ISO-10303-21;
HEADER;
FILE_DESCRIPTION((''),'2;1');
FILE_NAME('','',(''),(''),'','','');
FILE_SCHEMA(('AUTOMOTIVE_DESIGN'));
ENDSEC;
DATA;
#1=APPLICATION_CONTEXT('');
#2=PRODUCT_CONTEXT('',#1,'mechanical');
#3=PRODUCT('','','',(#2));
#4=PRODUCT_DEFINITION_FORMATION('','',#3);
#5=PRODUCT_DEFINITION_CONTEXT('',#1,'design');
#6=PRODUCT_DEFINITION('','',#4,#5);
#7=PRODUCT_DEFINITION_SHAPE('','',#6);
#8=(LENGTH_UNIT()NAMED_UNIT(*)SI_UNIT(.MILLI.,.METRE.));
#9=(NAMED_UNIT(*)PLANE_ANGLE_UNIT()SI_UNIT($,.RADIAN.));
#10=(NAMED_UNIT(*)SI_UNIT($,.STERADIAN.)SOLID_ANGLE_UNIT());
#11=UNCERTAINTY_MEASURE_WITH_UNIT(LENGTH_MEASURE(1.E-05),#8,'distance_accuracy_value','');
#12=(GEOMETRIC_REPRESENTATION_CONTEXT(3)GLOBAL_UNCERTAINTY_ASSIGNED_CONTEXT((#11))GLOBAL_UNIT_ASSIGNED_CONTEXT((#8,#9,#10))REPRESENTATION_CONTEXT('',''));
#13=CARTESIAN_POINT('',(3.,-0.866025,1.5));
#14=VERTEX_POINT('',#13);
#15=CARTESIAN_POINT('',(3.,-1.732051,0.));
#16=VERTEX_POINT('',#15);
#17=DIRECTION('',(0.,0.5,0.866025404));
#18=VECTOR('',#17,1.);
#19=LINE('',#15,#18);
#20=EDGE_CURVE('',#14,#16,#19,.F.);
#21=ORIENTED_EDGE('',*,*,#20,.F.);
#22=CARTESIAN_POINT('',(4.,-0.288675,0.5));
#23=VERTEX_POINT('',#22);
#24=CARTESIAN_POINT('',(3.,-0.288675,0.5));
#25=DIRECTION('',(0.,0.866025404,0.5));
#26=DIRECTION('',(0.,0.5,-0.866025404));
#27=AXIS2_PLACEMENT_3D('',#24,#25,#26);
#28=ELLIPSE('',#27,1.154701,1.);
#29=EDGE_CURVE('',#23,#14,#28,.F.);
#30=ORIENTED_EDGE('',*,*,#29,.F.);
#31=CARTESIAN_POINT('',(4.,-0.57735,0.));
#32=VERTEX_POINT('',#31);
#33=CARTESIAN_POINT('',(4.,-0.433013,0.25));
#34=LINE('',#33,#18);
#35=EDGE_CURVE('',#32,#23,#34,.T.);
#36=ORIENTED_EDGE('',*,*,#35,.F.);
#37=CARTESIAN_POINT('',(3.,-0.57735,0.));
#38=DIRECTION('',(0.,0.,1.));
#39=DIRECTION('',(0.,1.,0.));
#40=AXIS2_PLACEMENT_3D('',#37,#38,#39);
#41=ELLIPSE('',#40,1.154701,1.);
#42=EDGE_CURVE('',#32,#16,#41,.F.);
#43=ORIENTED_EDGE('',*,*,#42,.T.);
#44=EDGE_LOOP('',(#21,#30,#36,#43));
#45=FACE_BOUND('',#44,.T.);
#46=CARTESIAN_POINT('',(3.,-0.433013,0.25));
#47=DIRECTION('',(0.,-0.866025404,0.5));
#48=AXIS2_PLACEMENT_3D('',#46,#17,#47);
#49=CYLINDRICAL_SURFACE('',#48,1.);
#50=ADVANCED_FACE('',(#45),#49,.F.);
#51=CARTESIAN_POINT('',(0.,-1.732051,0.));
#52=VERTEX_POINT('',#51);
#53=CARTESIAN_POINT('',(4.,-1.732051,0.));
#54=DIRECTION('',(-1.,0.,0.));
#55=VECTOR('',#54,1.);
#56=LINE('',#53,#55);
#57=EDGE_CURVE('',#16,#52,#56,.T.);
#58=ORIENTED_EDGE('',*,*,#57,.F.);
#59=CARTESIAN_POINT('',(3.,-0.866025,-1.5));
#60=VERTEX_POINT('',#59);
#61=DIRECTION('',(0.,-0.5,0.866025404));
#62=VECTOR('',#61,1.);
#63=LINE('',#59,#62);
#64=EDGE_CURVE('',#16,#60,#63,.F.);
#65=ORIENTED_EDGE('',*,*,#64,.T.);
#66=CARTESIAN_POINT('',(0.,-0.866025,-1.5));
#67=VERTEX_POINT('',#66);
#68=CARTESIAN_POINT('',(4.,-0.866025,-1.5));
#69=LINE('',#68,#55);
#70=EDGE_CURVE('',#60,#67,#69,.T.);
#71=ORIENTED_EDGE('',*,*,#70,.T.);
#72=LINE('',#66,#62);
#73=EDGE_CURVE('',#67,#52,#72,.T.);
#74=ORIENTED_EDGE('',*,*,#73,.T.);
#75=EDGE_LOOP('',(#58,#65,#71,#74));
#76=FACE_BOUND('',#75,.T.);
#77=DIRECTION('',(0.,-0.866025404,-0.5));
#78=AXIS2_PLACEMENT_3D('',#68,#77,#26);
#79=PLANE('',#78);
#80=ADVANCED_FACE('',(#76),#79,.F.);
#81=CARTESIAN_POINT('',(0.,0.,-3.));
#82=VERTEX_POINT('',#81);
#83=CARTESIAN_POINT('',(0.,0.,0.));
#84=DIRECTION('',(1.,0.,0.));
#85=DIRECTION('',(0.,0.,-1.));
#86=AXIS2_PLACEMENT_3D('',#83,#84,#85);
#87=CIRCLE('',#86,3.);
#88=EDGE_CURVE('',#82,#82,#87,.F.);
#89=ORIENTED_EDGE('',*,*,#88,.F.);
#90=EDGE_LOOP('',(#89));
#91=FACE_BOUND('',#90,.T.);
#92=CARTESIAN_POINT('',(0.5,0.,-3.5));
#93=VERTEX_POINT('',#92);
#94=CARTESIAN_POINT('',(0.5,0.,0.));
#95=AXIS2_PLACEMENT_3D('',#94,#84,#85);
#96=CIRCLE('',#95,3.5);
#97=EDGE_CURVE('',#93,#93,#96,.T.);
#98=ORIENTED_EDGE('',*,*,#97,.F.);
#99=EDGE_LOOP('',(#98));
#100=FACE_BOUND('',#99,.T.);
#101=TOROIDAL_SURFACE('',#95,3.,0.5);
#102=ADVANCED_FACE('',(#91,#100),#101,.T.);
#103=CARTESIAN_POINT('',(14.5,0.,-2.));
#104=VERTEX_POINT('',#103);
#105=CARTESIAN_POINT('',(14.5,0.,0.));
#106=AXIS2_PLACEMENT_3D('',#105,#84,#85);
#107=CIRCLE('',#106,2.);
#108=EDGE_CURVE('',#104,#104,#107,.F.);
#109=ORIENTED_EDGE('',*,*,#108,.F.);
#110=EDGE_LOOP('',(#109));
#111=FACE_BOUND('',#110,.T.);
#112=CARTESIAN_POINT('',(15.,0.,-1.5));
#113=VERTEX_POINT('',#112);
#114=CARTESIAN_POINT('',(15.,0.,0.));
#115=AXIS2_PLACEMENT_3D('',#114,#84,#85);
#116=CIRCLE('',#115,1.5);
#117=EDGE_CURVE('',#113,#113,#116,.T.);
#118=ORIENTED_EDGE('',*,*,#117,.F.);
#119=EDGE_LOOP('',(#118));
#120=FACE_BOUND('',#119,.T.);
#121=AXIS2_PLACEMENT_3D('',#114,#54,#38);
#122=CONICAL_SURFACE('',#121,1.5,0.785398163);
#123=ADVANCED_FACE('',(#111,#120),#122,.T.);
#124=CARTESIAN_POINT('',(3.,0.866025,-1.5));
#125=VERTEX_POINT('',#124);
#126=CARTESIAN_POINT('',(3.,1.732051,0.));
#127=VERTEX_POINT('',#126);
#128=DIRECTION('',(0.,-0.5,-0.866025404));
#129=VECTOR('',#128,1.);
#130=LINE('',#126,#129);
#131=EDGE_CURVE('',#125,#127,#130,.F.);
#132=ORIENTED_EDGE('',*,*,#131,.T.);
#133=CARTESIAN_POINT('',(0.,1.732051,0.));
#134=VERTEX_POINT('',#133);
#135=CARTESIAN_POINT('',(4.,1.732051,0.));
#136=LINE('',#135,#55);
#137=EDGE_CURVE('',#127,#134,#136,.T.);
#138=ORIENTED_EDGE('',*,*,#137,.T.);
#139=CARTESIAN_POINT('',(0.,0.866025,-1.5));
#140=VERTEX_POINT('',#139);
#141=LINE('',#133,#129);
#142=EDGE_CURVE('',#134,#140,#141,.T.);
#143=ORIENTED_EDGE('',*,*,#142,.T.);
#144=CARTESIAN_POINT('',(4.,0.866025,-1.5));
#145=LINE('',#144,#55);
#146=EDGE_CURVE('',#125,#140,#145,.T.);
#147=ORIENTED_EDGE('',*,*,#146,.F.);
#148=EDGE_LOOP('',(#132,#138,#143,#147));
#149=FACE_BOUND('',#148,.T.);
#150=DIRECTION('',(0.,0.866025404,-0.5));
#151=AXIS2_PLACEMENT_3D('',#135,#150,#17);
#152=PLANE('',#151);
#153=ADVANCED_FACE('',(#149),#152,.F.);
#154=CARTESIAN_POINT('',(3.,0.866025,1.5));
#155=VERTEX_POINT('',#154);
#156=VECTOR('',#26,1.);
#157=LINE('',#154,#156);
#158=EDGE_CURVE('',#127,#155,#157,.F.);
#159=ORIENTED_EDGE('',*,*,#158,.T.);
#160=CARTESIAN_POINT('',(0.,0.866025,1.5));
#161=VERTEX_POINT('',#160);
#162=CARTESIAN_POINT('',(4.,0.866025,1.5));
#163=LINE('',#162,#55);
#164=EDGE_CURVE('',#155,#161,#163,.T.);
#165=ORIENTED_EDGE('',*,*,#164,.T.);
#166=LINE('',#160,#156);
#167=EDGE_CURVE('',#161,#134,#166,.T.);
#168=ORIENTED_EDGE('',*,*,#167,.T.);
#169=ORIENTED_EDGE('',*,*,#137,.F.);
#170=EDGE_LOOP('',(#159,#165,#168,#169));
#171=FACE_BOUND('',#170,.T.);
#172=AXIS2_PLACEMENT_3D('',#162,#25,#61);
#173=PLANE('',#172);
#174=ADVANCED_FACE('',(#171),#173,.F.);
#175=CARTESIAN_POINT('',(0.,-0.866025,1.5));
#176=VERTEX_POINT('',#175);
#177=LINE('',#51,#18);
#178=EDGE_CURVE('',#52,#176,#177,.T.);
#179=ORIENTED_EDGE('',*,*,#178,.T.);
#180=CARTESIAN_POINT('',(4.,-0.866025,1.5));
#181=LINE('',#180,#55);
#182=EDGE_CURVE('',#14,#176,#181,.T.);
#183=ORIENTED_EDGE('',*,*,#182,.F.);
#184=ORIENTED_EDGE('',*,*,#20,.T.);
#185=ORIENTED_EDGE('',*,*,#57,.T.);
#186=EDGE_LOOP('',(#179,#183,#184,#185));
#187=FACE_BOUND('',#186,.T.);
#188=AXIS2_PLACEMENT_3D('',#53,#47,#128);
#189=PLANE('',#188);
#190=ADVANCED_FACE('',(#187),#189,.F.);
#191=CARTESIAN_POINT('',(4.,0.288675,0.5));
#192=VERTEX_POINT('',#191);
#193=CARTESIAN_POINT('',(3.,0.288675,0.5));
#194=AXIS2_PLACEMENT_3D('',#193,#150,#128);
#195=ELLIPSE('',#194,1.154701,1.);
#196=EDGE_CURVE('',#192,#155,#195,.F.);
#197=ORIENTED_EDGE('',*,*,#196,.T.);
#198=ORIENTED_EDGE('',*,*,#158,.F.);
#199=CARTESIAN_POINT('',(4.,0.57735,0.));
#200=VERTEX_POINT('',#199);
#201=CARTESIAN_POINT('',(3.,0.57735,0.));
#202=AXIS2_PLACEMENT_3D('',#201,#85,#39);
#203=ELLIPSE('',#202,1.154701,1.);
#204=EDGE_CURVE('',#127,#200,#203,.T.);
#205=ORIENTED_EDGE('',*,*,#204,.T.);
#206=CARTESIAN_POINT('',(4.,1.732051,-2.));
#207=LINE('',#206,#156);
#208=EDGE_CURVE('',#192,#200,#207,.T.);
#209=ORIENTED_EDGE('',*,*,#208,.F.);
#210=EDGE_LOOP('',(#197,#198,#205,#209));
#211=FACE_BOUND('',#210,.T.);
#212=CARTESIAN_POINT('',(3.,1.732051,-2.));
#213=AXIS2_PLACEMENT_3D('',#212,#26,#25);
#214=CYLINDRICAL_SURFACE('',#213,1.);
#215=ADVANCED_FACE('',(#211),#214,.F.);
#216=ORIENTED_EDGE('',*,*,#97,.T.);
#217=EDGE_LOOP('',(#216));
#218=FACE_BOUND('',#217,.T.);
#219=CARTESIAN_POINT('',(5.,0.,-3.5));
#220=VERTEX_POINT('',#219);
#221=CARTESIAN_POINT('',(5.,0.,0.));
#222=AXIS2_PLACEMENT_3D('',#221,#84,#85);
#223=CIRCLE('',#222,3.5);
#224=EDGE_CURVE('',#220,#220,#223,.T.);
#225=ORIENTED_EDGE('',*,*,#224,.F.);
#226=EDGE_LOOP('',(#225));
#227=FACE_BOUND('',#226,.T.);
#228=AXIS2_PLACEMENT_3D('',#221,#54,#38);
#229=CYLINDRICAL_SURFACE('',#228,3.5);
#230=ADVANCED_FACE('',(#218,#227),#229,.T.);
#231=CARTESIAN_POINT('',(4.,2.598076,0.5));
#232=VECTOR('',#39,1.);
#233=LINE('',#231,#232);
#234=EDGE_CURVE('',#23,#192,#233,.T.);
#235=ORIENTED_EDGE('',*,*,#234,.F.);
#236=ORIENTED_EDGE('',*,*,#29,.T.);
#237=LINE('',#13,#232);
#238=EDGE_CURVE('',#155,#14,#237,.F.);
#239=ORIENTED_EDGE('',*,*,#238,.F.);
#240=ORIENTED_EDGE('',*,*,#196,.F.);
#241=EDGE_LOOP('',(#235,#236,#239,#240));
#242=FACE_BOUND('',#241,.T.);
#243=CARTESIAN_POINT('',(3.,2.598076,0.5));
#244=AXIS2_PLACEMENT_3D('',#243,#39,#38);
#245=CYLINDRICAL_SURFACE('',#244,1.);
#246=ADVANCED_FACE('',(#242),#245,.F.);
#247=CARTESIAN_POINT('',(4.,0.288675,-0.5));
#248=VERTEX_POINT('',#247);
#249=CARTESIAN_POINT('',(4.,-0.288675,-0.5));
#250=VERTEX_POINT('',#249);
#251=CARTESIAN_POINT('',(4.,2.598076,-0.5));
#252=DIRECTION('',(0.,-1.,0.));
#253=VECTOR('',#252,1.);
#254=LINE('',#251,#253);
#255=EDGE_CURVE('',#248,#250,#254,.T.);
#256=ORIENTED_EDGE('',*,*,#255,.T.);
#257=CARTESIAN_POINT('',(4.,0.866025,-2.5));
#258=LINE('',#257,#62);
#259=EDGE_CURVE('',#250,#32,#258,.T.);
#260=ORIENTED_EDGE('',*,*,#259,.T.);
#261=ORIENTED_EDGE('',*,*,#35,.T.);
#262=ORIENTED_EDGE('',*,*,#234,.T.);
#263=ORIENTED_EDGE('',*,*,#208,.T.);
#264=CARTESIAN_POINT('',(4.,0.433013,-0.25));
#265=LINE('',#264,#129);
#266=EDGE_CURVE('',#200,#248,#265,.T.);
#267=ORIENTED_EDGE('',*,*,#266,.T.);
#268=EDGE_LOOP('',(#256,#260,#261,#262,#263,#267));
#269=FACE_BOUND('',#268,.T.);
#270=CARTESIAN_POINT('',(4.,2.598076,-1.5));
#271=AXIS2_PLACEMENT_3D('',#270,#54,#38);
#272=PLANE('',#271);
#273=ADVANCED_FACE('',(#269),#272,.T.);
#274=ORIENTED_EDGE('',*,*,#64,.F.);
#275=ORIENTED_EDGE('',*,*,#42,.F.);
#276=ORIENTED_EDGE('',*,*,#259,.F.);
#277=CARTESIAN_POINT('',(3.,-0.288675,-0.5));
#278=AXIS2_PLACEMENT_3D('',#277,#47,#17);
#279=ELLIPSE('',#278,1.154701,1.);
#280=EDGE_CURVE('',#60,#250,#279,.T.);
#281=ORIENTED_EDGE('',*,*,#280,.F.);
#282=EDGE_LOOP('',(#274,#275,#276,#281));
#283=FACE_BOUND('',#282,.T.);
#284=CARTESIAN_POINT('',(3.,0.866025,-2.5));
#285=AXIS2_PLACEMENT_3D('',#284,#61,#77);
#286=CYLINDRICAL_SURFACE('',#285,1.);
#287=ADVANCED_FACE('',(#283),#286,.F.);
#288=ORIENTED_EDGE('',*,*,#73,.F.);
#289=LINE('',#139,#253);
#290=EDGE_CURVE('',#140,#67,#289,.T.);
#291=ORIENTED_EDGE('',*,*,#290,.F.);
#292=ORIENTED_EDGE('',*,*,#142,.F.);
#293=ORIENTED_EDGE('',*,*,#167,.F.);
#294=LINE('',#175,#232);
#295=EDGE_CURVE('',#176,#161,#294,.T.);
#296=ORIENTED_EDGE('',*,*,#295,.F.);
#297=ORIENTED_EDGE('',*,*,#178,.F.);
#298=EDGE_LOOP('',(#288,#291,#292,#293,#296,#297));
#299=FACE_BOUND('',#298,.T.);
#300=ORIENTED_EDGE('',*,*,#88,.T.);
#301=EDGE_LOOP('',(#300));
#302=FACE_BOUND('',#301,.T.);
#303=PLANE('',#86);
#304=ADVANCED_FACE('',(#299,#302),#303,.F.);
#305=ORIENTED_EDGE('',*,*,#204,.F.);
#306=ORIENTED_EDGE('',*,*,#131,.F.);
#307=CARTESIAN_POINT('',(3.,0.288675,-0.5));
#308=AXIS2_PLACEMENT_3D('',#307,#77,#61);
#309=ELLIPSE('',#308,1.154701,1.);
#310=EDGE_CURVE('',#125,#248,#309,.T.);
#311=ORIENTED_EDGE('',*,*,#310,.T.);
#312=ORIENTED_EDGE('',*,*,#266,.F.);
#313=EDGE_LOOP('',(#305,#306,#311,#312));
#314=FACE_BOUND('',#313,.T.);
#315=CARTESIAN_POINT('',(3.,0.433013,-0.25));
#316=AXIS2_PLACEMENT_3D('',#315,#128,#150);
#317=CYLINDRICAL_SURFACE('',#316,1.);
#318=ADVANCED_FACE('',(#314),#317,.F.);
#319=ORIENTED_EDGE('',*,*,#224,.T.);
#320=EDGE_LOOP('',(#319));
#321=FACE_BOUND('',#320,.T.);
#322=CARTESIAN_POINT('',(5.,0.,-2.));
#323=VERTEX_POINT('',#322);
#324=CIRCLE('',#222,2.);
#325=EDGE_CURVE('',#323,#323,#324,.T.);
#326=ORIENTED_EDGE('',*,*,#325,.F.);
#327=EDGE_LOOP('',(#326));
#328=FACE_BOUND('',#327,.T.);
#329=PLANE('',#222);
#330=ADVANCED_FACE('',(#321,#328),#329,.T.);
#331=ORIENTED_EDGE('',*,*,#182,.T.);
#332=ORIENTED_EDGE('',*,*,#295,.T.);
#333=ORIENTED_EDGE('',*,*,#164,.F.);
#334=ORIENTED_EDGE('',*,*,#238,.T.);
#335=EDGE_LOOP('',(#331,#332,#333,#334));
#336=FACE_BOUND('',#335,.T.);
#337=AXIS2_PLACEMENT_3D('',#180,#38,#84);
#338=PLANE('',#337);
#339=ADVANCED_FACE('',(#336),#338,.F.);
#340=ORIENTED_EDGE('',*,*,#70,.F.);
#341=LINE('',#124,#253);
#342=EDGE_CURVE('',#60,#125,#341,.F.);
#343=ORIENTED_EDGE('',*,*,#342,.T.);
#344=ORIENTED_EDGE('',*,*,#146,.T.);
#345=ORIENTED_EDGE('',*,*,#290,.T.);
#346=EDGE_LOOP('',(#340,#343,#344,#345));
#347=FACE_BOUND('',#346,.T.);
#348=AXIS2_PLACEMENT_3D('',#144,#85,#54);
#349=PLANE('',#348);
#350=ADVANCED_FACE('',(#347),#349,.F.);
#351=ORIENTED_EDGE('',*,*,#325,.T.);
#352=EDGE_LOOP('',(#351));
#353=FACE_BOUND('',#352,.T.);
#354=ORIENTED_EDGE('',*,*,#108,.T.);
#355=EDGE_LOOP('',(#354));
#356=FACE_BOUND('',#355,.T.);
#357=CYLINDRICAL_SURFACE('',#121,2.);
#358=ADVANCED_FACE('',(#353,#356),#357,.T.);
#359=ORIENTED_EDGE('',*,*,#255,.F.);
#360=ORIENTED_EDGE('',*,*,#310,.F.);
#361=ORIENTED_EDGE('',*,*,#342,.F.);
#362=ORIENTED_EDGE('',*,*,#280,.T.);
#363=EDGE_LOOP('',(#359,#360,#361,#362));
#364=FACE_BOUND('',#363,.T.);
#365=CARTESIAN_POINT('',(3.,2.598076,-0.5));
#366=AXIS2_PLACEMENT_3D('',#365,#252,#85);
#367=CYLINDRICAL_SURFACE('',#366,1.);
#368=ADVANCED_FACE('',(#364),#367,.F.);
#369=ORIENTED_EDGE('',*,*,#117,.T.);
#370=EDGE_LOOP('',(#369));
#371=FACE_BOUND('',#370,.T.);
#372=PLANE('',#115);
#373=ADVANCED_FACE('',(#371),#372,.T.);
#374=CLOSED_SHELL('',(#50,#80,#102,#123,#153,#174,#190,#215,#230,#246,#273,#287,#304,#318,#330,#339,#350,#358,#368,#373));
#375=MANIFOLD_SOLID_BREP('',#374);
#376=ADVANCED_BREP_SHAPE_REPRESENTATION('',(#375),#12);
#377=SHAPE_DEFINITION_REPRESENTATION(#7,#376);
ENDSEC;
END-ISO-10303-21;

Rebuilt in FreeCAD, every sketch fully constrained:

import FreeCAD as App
import Part
import Sketcher
from FreeCAD import Vector
Q = App.Units.Quantity


def edges_at(feature, points):
    """Names of the edges that pass closest to the given points."""
    edges = feature.Shape.Edges
    near = lambda p: min(range(len(edges)), key=lambda i: edges[i].distToShape(Part.Vertex(*p))[0])
    return sorted({f"Edge{near(p) + 1}" for p in points})

doc = App.newDocument("Part")
body = doc.addObject("PartDesign::Body", "Body")

# Sketch on YZ plane
sketch1 = body.newObject("Sketcher::SketchObject", "Sketch")
sketch1.AttachmentSupport = (doc.getObject("YZ_Plane"), [""])
sketch1.MapMode = "FlatFace"
sketch1.addGeometry(Part.Circle(Vector(0, 0, 0), Vector(0, 0, 1), 3.5), False)
sketch1.addConstraint([
    Sketcher.Constraint("Coincident", 0, 3, -1, 1),
    Sketcher.Constraint("Diameter", 0, Q("7 mm")),
])
pad1 = body.newObject("PartDesign::Pad", "Pad")
pad1.Profile = sketch1
pad1.Length = 5

# Sketch on YZ plane
sketch2 = body.newObject("Sketcher::SketchObject", "Sketch001")
sketch2.AttachmentSupport = (doc.getObject("YZ_Plane"), [""])
sketch2.MapMode = "FlatFace"
sketch2.AttachmentOffset = App.Placement(Vector(0, 0, 5), App.Rotation())
sketch2.addGeometry(Part.Circle(Vector(0, 0, 0), Vector(0, 0, 1), 2), False)
sketch2.addConstraint([
    Sketcher.Constraint("Coincident", 0, 3, -1, 1),
    Sketcher.Constraint("Diameter", 0, Q("4 mm")),
])
pad2 = body.newObject("PartDesign::Pad", "Pad001")
pad2.Profile = sketch2
pad2.Length = 10
doc.recompute()

chamfer = body.newObject("PartDesign::Chamfer", "Chamfer")
chamfer.Base = (pad2, edges_at(pad2, [(15, 0, 2)]))
chamfer.Size = 0.5

# Sketch on YZ plane
sketch3 = body.newObject("Sketcher::SketchObject", "Sketch002")
sketch3.AttachmentSupport = (doc.getObject("YZ_Plane"), [""])
sketch3.MapMode = "FlatFace"
sketch3.addGeometry([
    Part.LineSegment(Vector(1.7, 0, 0), Vector(0.9, -1.5, 0)),  # 0
    Part.LineSegment(Vector(0.9, -1.5, 0), Vector(-0.9, -1.5, 0)),  # 1
    Part.LineSegment(Vector(-0.9, -1.5, 0), Vector(-1.7, 0, 0)),  # 2
    Part.LineSegment(Vector(-1.7, 0, 0), Vector(-0.9, 1.5, 0)),  # 3
    Part.LineSegment(Vector(-0.9, 1.5, 0), Vector(0.9, 1.5, 0)),  # 4
    Part.LineSegment(Vector(0.9, 1.5, 0), Vector(1.7, 0, 0)),  # 5
], False)
sketch3.addConstraint([
    Sketcher.Constraint("Coincident", 0, 2, 1, 1),
    Sketcher.Constraint("Coincident", 1, 2, 2, 1),
    Sketcher.Constraint("Coincident", 2, 2, 3, 1),
    Sketcher.Constraint("Coincident", 3, 2, 4, 1),
    Sketcher.Constraint("Coincident", 4, 2, 5, 1),
    Sketcher.Constraint("Coincident", 5, 2, 0, 1),
    Sketcher.Constraint("Horizontal", 1),
    Sketcher.Constraint("Horizontal", 4),
    Sketcher.Constraint("Symmetric", 0, 2, 3, 2, -1, 1),
    Sketcher.Constraint("Symmetric", 2, 2, 5, 2, -1, 1),
    Sketcher.Constraint("PointOnObject", 2, 2, -1),
    Sketcher.Constraint("Parallel", 2, 5),
    Sketcher.Constraint("Vertical", 1, 2, 3, 2),
    Sketcher.Constraint("Angle", 0, Q("-120 deg")),
    Sketcher.Constraint("DistanceY", 1, 2, 3, 2, Q("3 mm")),
    Sketcher.Constraint("DistanceX", 1, 2, 1, 1, Q("1.732051 mm")),
])
pocket1 = body.newObject("PartDesign::Pocket", "Pocket")
pocket1.Profile = sketch3
pocket1.Length = 4
pocket1.Reversed = True
doc.recompute()

fillet = body.newObject("PartDesign::Fillet", "Fillet")
fillet.Base = (pocket1, edges_at(pocket1, [
    (4, 1.299, 0.75),
    (4, 0, 1.5),
    (4, -1.299, 0.75),
    (4, -1.299, -0.75),
    (4, 0, -1.5),
    (4, 1.299, -0.75),
]))
fillet.Radius = 1
doc.recompute()

fillet2 = body.newObject("PartDesign::Fillet", "Fillet001")
fillet2.Base = (fillet, edges_at(fillet, [(0, 0, 3.5)]))
fillet2.Radius = 0.5

doc.recompute()
